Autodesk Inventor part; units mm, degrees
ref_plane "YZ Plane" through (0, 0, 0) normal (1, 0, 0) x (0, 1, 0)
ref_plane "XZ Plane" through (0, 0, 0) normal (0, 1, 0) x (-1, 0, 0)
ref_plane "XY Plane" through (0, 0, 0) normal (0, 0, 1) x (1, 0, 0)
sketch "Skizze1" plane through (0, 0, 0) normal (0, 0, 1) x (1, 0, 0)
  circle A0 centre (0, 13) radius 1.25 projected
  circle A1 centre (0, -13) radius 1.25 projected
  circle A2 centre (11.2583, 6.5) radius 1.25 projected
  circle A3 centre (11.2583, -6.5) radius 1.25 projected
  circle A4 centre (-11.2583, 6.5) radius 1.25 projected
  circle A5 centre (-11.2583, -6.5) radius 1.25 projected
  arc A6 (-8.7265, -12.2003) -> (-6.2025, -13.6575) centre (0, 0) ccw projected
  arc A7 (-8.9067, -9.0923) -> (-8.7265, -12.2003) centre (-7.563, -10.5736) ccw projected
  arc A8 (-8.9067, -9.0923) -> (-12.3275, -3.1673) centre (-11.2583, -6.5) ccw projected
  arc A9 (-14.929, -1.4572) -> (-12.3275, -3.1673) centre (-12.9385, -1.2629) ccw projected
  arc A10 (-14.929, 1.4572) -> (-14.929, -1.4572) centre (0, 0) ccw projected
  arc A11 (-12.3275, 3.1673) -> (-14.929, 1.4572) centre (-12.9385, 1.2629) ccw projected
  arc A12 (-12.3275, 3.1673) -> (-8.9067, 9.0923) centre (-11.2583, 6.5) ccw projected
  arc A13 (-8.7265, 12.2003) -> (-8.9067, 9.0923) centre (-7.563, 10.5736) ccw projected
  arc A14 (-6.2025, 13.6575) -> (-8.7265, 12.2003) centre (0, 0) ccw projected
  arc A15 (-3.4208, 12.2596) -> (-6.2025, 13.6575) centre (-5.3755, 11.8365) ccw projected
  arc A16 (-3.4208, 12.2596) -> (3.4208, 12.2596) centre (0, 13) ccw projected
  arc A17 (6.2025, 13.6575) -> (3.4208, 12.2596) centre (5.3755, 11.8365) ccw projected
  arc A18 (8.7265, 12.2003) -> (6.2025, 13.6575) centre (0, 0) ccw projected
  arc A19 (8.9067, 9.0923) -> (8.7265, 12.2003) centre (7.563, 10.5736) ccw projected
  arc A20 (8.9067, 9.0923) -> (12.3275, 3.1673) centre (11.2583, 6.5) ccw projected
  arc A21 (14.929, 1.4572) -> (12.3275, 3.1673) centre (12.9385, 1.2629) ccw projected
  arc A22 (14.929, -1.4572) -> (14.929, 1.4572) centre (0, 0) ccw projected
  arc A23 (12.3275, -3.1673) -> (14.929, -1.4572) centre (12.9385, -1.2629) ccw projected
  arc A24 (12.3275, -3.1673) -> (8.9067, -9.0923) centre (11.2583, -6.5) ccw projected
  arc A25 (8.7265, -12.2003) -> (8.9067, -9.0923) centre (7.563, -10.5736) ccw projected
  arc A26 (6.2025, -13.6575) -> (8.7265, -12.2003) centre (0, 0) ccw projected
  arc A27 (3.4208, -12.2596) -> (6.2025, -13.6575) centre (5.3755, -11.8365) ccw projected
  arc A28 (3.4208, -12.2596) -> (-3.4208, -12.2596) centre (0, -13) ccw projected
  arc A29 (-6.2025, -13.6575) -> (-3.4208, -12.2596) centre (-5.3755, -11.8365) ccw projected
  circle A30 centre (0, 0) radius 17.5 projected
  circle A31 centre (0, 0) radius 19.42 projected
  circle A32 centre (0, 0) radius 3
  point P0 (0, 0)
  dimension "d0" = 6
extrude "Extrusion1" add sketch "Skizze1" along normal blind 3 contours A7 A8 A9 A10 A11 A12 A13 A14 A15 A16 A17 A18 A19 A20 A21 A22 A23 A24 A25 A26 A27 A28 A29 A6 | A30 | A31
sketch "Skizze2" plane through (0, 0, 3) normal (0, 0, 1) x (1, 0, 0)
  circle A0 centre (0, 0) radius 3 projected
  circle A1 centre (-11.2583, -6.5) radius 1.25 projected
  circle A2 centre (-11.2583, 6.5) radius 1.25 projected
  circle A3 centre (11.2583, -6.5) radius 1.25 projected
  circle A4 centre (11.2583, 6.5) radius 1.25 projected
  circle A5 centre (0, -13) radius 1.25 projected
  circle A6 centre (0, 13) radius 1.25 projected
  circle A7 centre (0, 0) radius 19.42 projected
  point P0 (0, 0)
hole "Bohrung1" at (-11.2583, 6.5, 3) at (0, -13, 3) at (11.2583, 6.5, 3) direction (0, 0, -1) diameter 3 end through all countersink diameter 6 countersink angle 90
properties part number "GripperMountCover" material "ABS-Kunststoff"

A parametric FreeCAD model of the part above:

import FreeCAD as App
import Part
import Sketcher

V = App.Vector
Q = App.Units.Quantity

doc = App.newDocument("Part")
body = doc.addObject("PartDesign::Body", "Body")

# Sketch on XY plane
sketch1 = body.newObject("Sketcher::SketchObject", "Sketch")
sketch1.AttachmentSupport = (doc.getObject("XY_Plane"), [""])
sketch1.MapMode = "FlatFace"
sketch1.addGeometry([
    Part.Circle(V(0, 0, 0), V(0, 0, 1), 19.42),  # 0
    Part.Circle(V(0, 0, 0), V(0, 0, 1), 3),  # 1
    Part.Circle(V(-11.2583, -6.5, 0), V(0, 0, 1), 1.25),  # 2
    Part.Circle(V(0, -13, 0), V(0, 0, 1), 1.25),  # 3
    Part.Circle(V(11.2583, -6.5, 0), V(0, 0, 1), 1.25),  # 4
    Part.Circle(V(-11.2583, 6.5, 0), V(0, 0, 1), 1.25),  # 5
    Part.Circle(V(11.2583, 6.5, 0), V(0, 0, 1), 1.25),  # 6
    Part.Circle(V(0, 13, 0), V(0, 0, 1), 1.25),  # 7
], False)
sketch1.addConstraint([
    Sketcher.Constraint("Coincident", 0, 3, -1, 1),
    Sketcher.Constraint("Coincident", 1, 3, -1, 1),
    Sketcher.Constraint("Equal", 2, 3),
    Sketcher.Constraint("Equal", 3, 4),
    Sketcher.Constraint("Equal", 4, 5),
    Sketcher.Constraint("Equal", 5, 6),
    Sketcher.Constraint("Equal", 6, 7),
    Sketcher.Constraint("Symmetric", 4, 3, 5, 3, -1, 1),
    Sketcher.Constraint("Symmetric", 2, 3, 6, 3, -1, 1),
    Sketcher.Constraint("Symmetric", 3, 3, 7, 3, -1, 1),
    Sketcher.Constraint("Symmetric", 2, 3, 4, 3, -2),
    Sketcher.Constraint("PointOnObject", 3, 3, -2),
    Sketcher.Constraint("Diameter", 1, Q("6 mm")),
    Sketcher.Constraint("Diameter", 2, Q("2.5 mm")),
    Sketcher.Constraint("Diameter", 0, Q("38.84 mm")),
    Sketcher.Constraint("DistanceY", 3, 3, -1, 1, Q("13 mm")),
    Sketcher.Constraint("DistanceY", 2, 3, 5, 3, Q("13 mm")),
    Sketcher.Constraint("DistanceX", 2, 3, -1, 1, Q("11.2583 mm")),
])
pad1 = body.newObject("PartDesign::Pad", "Pad")
pad1.Profile = sketch1
pad1.Length = 3

# Sketch on XY plane
sketch2 = body.newObject("Sketcher::SketchObject", "Sketch001")
sketch2.AttachmentSupport = (doc.getObject("XY_Plane"), [""])
sketch2.MapMode = "FlatFace"
sketch2.AttachmentOffset = App.Placement(V(0, 0, 3), App.Rotation())
sketch2.addGeometry([
    Part.Circle(V(-11.2583, 6.5, 0), V(0, 0, 1), 1.5),
    Part.Circle(V(0, -13, 0), V(0, 0, 1), 1.5),
    Part.Circle(V(11.2583, 6.5, 0), V(0, 0, 1), 1.5),
], False)
sketch2.addConstraint([
    Sketcher.Constraint("Equal", 0, 1),
    Sketcher.Constraint("Equal", 1, 2),
    Sketcher.Constraint("Symmetric", 0, 3, 2, 3, -2),
    Sketcher.Constraint("PointOnObject", 1, 3, -2),
    Sketcher.Constraint("Diameter", 0, Q("3 mm")),
    Sketcher.Constraint("DistanceY", 1, 3, -1, 1, Q("13 mm")),
    Sketcher.Constraint("DistanceY", -1, 1, 0, 3, Q("6.5 mm")),
    Sketcher.Constraint("DistanceX", 0, 3, -1, 1, Q("11.2583 mm")),
])
doc.recompute()
hole = body.newObject("PartDesign::Hole", "Hole")
hole.Profile = sketch2
hole.ThreadType = "None"
hole.Diameter = 3
hole.DepthType = "ThroughAll"
hole.HoleCutType = "Countersink"
hole.HoleCutDiameter = 6
hole.HoleCutCountersinkAngle = 90

doc.recompute()
